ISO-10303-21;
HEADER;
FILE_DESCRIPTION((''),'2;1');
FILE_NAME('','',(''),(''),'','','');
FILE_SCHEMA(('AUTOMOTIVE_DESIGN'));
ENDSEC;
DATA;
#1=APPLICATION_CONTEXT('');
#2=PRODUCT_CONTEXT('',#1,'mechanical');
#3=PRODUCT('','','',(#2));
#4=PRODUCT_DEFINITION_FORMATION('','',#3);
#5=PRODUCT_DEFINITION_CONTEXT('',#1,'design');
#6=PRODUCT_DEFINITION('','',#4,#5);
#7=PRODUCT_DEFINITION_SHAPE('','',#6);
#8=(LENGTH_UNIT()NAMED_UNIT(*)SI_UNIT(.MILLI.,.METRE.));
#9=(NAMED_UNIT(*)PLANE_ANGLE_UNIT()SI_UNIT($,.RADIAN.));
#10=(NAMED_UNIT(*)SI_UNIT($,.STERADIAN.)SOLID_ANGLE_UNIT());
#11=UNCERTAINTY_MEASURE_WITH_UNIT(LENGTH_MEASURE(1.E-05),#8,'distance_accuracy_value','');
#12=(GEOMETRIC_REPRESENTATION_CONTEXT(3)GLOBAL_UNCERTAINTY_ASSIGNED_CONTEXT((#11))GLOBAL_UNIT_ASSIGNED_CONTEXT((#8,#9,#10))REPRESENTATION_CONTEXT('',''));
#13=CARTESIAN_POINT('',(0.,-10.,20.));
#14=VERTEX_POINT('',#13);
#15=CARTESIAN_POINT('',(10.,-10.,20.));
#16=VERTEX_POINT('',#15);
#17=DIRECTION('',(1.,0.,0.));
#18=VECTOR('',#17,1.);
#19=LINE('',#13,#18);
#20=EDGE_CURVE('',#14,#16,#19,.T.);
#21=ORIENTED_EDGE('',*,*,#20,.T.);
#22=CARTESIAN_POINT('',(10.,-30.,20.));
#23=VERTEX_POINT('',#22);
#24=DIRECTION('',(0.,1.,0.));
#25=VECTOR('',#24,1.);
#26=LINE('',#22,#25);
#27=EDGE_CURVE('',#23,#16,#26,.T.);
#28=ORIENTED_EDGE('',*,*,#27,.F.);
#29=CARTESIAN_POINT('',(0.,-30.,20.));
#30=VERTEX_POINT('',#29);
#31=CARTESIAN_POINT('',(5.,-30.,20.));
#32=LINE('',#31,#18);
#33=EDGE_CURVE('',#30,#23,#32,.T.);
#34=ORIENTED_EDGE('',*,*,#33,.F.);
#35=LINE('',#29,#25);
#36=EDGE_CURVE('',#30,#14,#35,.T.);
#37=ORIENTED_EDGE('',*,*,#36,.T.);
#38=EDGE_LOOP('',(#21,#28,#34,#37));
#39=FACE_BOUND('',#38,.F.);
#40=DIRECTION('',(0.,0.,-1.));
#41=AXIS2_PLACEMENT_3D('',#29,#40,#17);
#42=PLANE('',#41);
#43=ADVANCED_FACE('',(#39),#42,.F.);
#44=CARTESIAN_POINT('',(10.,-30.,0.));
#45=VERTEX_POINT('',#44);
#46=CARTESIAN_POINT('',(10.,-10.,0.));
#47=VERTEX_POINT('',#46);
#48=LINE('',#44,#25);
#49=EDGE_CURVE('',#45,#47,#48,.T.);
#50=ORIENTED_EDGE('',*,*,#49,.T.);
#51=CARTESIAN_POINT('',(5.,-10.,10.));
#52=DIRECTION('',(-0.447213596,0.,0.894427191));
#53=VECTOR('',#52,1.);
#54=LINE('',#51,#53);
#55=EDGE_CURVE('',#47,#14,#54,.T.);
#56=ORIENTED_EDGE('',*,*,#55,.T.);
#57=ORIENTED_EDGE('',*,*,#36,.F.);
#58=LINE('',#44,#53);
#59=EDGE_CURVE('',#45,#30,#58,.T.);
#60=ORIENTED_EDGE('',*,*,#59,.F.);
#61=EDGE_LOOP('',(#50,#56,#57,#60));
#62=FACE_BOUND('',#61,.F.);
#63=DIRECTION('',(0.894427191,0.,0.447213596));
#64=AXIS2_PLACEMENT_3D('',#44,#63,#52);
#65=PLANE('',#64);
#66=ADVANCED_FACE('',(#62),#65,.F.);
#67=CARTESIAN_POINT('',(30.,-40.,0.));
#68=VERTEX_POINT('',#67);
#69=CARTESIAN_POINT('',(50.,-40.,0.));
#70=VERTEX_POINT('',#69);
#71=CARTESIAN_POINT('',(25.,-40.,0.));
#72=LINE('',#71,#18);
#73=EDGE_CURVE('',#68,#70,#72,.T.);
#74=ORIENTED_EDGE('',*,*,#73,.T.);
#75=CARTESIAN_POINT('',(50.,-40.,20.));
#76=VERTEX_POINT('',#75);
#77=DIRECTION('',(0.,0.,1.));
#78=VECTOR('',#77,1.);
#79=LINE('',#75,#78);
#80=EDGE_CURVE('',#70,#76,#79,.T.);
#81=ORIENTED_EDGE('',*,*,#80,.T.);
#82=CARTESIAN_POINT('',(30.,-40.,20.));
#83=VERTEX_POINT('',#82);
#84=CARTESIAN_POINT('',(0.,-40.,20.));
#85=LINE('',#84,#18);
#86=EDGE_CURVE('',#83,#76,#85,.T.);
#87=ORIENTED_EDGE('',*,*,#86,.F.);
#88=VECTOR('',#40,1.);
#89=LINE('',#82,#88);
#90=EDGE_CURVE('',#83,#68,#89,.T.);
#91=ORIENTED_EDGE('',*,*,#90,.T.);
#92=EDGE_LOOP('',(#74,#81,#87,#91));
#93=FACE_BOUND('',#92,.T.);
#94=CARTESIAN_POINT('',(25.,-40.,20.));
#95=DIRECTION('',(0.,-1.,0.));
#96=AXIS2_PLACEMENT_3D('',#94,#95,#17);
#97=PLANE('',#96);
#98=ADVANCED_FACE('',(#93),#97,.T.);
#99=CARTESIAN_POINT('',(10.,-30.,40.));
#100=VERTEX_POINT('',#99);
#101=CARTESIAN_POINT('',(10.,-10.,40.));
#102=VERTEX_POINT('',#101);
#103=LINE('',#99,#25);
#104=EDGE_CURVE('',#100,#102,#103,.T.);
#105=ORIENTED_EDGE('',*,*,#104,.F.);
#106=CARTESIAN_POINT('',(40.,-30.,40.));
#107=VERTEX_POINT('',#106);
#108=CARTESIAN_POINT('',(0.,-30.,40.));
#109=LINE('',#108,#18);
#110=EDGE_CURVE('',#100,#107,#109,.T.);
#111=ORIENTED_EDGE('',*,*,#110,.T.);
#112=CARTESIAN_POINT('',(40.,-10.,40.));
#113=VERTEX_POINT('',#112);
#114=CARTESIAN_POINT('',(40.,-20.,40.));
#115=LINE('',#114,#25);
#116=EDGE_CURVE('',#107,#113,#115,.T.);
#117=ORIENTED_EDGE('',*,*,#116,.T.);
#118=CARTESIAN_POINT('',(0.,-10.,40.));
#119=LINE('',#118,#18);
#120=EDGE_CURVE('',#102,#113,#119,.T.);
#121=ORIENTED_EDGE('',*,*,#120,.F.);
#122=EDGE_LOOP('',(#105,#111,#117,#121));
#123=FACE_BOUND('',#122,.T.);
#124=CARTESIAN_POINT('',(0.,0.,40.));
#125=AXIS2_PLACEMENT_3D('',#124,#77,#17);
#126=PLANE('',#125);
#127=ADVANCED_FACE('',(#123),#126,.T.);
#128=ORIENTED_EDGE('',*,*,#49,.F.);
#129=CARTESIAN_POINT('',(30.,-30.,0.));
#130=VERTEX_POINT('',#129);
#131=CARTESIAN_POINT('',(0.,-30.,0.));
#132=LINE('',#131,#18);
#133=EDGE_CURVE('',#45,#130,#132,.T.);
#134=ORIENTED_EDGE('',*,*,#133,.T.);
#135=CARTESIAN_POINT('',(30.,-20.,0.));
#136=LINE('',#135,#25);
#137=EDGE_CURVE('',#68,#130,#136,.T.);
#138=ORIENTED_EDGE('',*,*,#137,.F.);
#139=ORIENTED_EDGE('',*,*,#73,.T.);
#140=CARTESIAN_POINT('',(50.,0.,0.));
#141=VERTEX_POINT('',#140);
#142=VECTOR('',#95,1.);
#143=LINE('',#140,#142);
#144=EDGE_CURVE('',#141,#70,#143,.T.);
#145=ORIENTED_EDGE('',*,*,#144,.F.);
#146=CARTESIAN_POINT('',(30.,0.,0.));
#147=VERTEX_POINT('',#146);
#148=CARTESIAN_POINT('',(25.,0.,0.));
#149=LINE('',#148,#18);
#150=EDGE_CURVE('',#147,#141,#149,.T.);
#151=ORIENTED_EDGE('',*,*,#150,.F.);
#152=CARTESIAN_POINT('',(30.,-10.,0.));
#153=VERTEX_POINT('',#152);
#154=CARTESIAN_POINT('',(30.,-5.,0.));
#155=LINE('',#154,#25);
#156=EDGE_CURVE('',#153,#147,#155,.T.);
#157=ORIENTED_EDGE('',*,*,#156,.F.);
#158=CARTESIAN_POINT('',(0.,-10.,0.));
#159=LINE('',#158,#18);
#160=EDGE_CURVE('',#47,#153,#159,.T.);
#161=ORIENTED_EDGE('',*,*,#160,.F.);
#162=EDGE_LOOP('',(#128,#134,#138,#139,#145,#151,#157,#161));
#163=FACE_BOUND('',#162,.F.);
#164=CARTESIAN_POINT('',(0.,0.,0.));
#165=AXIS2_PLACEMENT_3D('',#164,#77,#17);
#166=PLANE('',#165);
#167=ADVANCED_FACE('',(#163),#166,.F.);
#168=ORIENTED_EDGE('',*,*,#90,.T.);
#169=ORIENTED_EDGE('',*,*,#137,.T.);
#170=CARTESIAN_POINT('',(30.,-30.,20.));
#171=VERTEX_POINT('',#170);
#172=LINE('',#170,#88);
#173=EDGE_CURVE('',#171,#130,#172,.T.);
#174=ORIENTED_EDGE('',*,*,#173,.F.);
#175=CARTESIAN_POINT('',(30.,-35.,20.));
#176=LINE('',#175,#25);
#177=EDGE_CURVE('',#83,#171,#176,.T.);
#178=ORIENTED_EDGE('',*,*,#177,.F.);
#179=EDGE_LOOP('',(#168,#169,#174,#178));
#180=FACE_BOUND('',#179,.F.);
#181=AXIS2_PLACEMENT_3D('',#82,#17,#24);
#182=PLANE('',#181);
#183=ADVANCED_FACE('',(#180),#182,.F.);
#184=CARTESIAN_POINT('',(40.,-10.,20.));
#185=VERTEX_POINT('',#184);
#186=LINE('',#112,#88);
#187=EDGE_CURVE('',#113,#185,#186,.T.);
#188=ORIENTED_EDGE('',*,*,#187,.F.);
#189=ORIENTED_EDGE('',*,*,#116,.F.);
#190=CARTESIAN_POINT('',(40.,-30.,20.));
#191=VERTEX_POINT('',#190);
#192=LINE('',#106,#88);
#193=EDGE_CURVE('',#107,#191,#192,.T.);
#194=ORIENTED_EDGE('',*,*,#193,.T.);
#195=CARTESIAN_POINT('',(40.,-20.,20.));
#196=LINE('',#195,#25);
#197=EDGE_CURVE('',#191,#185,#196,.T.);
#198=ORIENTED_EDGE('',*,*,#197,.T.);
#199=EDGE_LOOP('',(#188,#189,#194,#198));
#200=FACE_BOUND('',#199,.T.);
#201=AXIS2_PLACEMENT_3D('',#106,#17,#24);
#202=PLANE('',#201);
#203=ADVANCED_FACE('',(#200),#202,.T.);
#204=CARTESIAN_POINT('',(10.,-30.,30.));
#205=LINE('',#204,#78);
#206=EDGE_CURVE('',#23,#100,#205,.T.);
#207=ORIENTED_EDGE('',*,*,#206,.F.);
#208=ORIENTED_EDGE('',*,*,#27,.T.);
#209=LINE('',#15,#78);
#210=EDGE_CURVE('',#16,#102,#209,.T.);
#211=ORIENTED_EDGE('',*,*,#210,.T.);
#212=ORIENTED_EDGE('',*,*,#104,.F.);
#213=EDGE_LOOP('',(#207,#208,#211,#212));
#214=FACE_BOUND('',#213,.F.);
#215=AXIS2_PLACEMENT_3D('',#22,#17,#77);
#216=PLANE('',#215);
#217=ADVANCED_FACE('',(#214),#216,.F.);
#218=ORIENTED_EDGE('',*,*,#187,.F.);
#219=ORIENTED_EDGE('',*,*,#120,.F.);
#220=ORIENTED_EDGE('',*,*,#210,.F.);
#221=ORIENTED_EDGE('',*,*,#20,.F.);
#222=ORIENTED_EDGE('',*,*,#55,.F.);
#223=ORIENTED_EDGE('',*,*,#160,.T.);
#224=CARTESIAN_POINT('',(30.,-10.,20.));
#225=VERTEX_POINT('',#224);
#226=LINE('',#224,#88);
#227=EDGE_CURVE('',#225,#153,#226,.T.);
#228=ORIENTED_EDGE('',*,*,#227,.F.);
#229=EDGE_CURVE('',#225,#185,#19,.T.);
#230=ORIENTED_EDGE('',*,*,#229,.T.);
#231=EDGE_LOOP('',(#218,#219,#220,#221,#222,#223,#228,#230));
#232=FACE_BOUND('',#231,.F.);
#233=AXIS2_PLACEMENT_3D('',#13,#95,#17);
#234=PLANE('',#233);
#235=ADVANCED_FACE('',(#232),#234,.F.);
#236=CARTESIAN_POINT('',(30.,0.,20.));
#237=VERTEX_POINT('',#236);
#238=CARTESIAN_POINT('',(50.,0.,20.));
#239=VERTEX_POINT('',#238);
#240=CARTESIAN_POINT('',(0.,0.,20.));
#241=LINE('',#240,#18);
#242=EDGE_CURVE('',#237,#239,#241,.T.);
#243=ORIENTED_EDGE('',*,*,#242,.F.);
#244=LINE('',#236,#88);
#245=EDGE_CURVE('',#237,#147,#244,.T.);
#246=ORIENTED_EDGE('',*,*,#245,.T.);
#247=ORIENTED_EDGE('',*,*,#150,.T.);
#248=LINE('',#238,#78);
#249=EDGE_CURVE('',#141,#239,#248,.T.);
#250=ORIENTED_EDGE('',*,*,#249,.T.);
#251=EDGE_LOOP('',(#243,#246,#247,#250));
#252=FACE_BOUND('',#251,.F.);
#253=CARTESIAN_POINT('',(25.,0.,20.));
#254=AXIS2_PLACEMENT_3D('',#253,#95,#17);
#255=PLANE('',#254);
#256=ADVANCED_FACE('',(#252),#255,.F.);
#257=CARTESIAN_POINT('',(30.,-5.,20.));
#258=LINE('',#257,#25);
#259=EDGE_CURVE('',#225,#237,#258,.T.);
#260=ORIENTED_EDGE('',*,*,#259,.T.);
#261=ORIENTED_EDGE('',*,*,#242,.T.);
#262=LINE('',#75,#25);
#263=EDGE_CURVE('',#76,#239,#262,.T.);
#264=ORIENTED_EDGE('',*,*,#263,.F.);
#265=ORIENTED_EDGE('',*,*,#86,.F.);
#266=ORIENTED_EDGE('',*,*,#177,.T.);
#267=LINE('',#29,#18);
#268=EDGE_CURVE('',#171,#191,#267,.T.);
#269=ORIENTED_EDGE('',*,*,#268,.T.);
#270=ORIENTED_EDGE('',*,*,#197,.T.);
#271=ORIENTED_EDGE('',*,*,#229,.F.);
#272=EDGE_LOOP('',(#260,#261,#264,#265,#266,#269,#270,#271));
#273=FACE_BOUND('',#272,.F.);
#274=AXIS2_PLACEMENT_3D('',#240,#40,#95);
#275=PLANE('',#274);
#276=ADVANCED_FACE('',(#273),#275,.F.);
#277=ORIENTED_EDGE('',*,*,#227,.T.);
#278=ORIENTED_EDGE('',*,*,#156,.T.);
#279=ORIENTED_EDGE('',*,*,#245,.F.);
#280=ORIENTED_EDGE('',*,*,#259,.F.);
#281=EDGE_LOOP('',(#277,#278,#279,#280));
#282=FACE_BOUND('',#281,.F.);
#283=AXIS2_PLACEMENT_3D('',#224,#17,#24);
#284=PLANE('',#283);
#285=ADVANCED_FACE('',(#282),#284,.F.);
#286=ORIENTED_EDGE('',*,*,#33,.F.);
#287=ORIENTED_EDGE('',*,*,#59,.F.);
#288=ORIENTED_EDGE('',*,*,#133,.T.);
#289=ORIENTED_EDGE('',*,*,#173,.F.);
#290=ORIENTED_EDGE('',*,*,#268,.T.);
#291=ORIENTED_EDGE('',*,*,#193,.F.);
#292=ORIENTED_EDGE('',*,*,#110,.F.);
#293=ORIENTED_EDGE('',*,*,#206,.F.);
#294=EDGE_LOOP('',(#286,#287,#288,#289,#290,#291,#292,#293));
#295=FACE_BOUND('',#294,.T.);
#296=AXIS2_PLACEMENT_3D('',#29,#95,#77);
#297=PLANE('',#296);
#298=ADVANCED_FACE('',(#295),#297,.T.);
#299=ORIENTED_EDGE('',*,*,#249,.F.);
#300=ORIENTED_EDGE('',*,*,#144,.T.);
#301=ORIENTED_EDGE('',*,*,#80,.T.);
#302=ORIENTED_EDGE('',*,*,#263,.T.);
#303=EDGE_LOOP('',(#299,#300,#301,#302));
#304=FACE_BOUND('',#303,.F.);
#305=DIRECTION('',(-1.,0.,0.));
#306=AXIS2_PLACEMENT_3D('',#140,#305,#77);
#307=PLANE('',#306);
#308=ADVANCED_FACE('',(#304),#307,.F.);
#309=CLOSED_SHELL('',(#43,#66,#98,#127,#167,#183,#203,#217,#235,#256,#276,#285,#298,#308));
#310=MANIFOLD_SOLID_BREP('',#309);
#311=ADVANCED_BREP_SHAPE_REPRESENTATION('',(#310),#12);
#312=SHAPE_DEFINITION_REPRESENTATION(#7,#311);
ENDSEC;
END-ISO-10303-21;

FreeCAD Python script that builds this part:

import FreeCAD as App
import Part
import Sketcher

V = App.Vector
Q = App.Units.Quantity

doc = App.newDocument("Part")
body = doc.addObject("PartDesign::Body", "Body")

sketch1 = body.newObject("Sketcher::SketchObject", "Sketch")
sketch1.AttachmentSupport = (doc.getObject("XZ_Plane"), [""])
sketch1.MapMode = "FlatFace"
sketch1.addGeometry([
    Part.LineSegment(V(0, 40, 0), V(0, 0, 0)),
    Part.LineSegment(V(0, 0, 0), V(50, 0, 0)),
    Part.LineSegment(V(50, 0, 0), V(50, 40, 0)),
    Part.LineSegment(V(50, 40, 0), V(0, 40, 0)),
], False)
sketch1.addConstraint([
    Sketcher.Constraint("Coincident", 0, 2, 1, 1),
    Sketcher.Constraint("Coincident", 1, 2, 2, 1),
    Sketcher.Constraint("Coincident", 2, 2, 3, 1),
    Sketcher.Constraint("Coincident", 3, 2, 0, 1),
    Sketcher.Constraint("Vertical", 0),
    Sketcher.Constraint("Horizontal", 1),
    Sketcher.Constraint("Vertical", 2),
    Sketcher.Constraint("Horizontal", 3),
    Sketcher.Constraint("Coincident", 0, 2, -1, 1),
    Sketcher.Constraint("DistanceX", 1, 1, 1, 2, Q("50 mm")),
    Sketcher.Constraint("DistanceY", 0, 2, 0, 1, Q("40 mm")),
])
pad1 = body.newObject("PartDesign::Pad", "Pad")
pad1.Profile = sketch1
pad1.Length = 40

sketch2 = body.newObject("Sketcher::SketchObject", "Sketch001")
sketch2.AttachmentSupport = (doc.getObject("YZ_Plane"), [""])
sketch2.MapMode = "FlatFace"
sketch2.addGeometry([
    Part.LineSegment(V(0, 40, 0), V(0, 20, 0)),
    Part.LineSegment(V(0, 20, 0), V(-10, 20, 0)),
    Part.LineSegment(V(-10, 20, 0), V(-10, 40, 0)),
    Part.LineSegment(V(-10, 40, 0), V(0, 40, 0)),
    Part.LineSegment(V(-30, 40, 0), V(-30, 20, 0)),
    Part.LineSegment(V(-30, 20, 0), V(-40, 20, 0)),
    Part.LineSegment(V(-40, 20, 0), V(-40, 40, 0)),
    Part.LineSegment(V(-40, 40, 0), V(-30, 40, 0)),
], False)
sketch2.addConstraint([
    Sketcher.Constraint("Coincident", 0, 2, 1, 1),
    Sketcher.Constraint("Coincident", 1, 2, 2, 1),
    Sketcher.Constraint("Coincident", 2, 2, 3, 1),
    Sketcher.Constraint("Coincident", 3, 2, 0, 1),
    Sketcher.Constraint("Coincident", 4, 2, 5, 1),
    Sketcher.Constraint("Coincident", 5, 2, 6, 1),
    Sketcher.Constraint("Coincident", 6, 2, 7, 1),
    Sketcher.Constraint("Coincident", 7, 2, 4, 1),
    Sketcher.Constraint("Vertical", 0),
    Sketcher.Constraint("Horizontal", 1),
    Sketcher.Constraint("Vertical", 2),
    Sketcher.Constraint("Horizontal", 3),
    Sketcher.Constraint("Vertical", 4),
    Sketcher.Constraint("Horizontal", 5),
    Sketcher.Constraint("Vertical", 6),
    Sketcher.Constraint("Horizontal", 7),
    Sketcher.Constraint("PointOnObject", 0, 2, -2),
    Sketcher.Constraint("Horizontal", 1, 2, 4, 2),
    Sketcher.Constraint("Horizontal", 3, 2, 6, 2),
    Sketcher.Constraint("Equal", 3, 5),
    Sketcher.Constraint("DistanceX", 1, 2, 1, 1, Q("10 mm")),
    Sketcher.Constraint("DistanceY", 0, 2, 0, 1, Q("20 mm")),
    Sketcher.Constraint("DistanceY", -1, 1, 0, 2, Q("20 mm")),
    Sketcher.Constraint("DistanceX", 4, 2, -1, 1, Q("30 mm")),
])
pocket1 = body.newObject("PartDesign::Pocket", "Pocket")
pocket1.Profile = sketch2
pocket1.Type = "ThroughAll"
pocket1.Reversed = True

sketch3 = body.newObject("Sketcher::SketchObject", "Sketch002")
sketch3.AttachmentSupport = (doc.getObject("XY_Plane"), [""])
sketch3.MapMode = "FlatFace"
sketch3.AttachmentOffset = App.Placement(V(0, 0, 20), App.Rotation())
sketch3.addGeometry([
    Part.LineSegment(V(0, 0, 0), V(0, -10, 0)),
    Part.LineSegment(V(0, -10, 0), V(30, -10, 0)),
    Part.LineSegment(V(30, -10, 0), V(30, 0, 0)),
    Part.LineSegment(V(30, 0, 0), V(0, 0, 0)),
    Part.LineSegment(V(0, -30, 0), V(0, -40, 0)),
    Part.LineSegment(V(0, -40, 0), V(30, -40, 0)),
    Part.LineSegment(V(30, -40, 0), V(30, -30, 0)),
    Part.LineSegment(V(30, -30, 0), V(0, -30, 0)),
], False)
sketch3.addConstraint([
    Sketcher.Constraint("Coincident", 0, 2, 1, 1),
    Sketcher.Constraint("Coincident", 1, 2, 2, 1),
    Sketcher.Constraint("Coincident", 2, 2, 3, 1),
    Sketcher.Constraint("Coincident", 3, 2, 0, 1),
    Sketcher.Constraint("Coincident", 4, 2, 5, 1),
    Sketcher.Constraint("Coincident", 5, 2, 6, 1),
    Sketcher.Constraint("Coincident", 6, 2, 7, 1),
    Sketcher.Constraint("Coincident", 7, 2, 4, 1),
    Sketcher.Constraint("Vertical", 0),
    Sketcher.Constraint("Horizontal", 1),
    Sketcher.Constraint("Vertical", 2),
    Sketcher.Constraint("Horizontal", 3),
    Sketcher.Constraint("Vertical", 4),
    Sketcher.Constraint("Horizontal", 5),
    Sketcher.Constraint("Vertical", 6),
    Sketcher.Constraint("Horizontal", 7),
    Sketcher.Constraint("Coincident", 3, 2, -1, 1),
    Sketcher.Constraint("PointOnObject", 4, 2, -2),
    Sketcher.Constraint("Vertical", 2, 2, 5, 2),
    Sketcher.Constraint("Equal", 2, 4),
    Sketcher.Constraint("DistanceX", 1, 1, 1, 2, Q("30 mm")),
    Sketcher.Constraint("DistanceY", 0, 2, 0, 1, Q("10 mm")),
    Sketcher.Constraint("DistanceY", 4, 2, -1, 1, Q("40 mm")),
])
pocket2 = body.newObject("PartDesign::Pocket", "Pocket001")
pocket2.Profile = sketch3
pocket2.Type = "ThroughAll"

sketch4 = body.newObject("Sketcher::SketchObject", "Sketch003")
sketch4.AttachmentSupport = (doc.getObject("XY_Plane"), [""])
sketch4.MapMode = "FlatFace"
sketch4.AttachmentOffset = App.Placement(V(0, 0, 40), App.Rotation())
sketch4.addGeometry([
    Part.LineSegment(V(40, -10, 0), V(40, -30, 0)),
    Part.LineSegment(V(40, -30, 0), V(50, -30, 0)),
    Part.LineSegment(V(50, -30, 0), V(50, -10, 0)),
    Part.LineSegment(V(50, -10, 0), V(40, -10, 0)),
], False)
sketch4.addConstraint([
    Sketcher.Constraint("Coincident", 0, 2, 1, 1),
    Sketcher.Constraint("Coincident", 1, 2, 2, 1),
    Sketcher.Constraint("Coincident", 2, 2, 3, 1),
    Sketcher.Constraint("Coincident", 3, 2, 0, 1),
    Sketcher.Constraint("Vertical", 0),
    Sketcher.Constraint("Horizontal", 1),
    Sketcher.Constraint("Vertical", 2),
    Sketcher.Constraint("Horizontal", 3),
    Sketcher.Constraint("DistanceX", 1, 1, 1, 2, Q("10 mm")),
    Sketcher.Constraint("DistanceY", 0, 2, 0, 1, Q("20 mm")),
    Sketcher.Constraint("DistanceX", -1, 1, 0, 2, Q("40 mm")),
    Sketcher.Constraint("DistanceY", 0, 2, -1, 1, Q("30 mm")),
])
pocket3 = body.newObject("PartDesign::Pocket", "Pocket002")
pocket3.Profile = sketch4
pocket3.Length = 20

sketch5 = body.newObject("Sketcher::SketchObject", "Sketch004")
sketch5.AttachmentSupport = (doc.getObject("XZ_Plane"), [""])
sketch5.MapMode = "FlatFace"
sketch5.AttachmentOffset = App.Placement(V(0, 0, 30), App.Rotation())
sketch5.addGeometry([
    Part.LineSegment(V(10, 0, 0), V(0, 20, 0)),
    Part.LineSegment(V(0, 20, 0), V(0, 0, 0)),
    Part.LineSegment(V(0, 0, 0), V(10, 0, 0)),
    Part.LineSegment(V(0, 40, 0), V(0, 20, 0)),
    Part.LineSegment(V(0, 20, 0), V(10, 20, 0)),
    Part.LineSegment(V(10, 20, 0), V(10, 40, 0)),
    Part.LineSegment(V(10, 40, 0), V(0, 40, 0)),
], False)
sketch5.addConstraint([
    Sketcher.Constraint("Coincident", 0, 2, 1, 1),
    Sketcher.Constraint("Coincident", 1, 2, 2, 1),
    Sketcher.Constraint("Coincident", 2, 2, 0, 1),
    Sketcher.Constraint("Coincident", 3, 2, 4, 1),
    Sketcher.Constraint("Coincident", 4, 2, 5, 1),
    Sketcher.Constraint("Coincident", 5, 2, 6, 1),
    Sketcher.Constraint("Coincident", 6, 2, 3, 1),
    Sketcher.Constraint("Vertical", 1),
    Sketcher.Constraint("Horizontal", 2),
    Sketcher.Constraint("Vertical", 3),
    Sketcher.Constraint("Horizontal", 4),
    Sketcher.Constraint("Vertical", 5),
    Sketcher.Constraint("Horizontal", 6),
    Sketcher.Constraint("Coincident", 1, 2, -1, 1),
    Sketcher.Constraint("Coincident", 3, 2, 0, 2),
    Sketcher.Constraint("Vertical", 2, 2, 4, 2),
    Sketcher.Constraint("Equal", 1, 3),
    Sketcher.Constraint("DistanceX", 2, 1, 2, 2, Q("10 mm")),
    Sketcher.Constraint("DistanceY", 1, 2, 1, 1, Q("20 mm")),
])
pocket4 = body.newObject("PartDesign::Pocket", "Pocket003")
pocket4.Profile = sketch5
pocket4.Type = "ThroughAll"

doc.recompute()
